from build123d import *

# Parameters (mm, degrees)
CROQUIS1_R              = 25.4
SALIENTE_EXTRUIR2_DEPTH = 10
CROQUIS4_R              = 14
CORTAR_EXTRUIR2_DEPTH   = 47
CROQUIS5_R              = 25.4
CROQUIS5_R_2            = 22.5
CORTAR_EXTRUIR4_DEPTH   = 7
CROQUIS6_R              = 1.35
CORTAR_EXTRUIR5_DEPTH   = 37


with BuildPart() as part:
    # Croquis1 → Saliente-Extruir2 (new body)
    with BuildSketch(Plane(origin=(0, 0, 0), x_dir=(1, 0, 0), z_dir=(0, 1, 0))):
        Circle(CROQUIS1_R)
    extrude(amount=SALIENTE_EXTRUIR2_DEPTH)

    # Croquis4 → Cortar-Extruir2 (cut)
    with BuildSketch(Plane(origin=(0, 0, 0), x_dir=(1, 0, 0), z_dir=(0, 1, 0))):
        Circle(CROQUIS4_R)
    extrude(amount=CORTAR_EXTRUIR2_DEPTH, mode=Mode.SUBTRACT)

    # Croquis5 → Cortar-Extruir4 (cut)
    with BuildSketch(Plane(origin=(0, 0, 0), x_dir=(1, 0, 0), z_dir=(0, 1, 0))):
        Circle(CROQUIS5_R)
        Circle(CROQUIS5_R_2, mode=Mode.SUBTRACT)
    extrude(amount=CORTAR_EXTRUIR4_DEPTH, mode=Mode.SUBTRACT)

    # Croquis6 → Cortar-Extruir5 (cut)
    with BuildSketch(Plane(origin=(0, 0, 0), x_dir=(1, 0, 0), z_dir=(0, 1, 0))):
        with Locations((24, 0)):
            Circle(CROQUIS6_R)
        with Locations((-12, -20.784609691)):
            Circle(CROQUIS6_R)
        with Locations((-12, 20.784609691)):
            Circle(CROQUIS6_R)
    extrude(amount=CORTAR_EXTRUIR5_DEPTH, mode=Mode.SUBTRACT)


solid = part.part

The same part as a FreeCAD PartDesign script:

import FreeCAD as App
import Part
import Sketcher

doc = App.newDocument("Part")
body = doc.addObject("PartDesign::Body", "Body")

sketch1 = body.newObject("Sketcher::SketchObject", "Sketch")
sketch1.AttachmentSupport = (doc.getObject("XZ_Plane"), [""])
sketch1.MapMode = "FlatFace"
sketch1.addGeometry(Part.Circle(App.Vector(0, 0, 0), App.Vector(0, 0, 1), 25), False)
sketch1.addConstraint([
    Sketcher.Constraint("Coincident", 0, 3, -1, 1),
    Sketcher.Constraint("Diameter", 0, 50.8),
])
pad1 = body.newObject("PartDesign::Pad", "Pad")
pad1.Profile = sketch1
pad1.Length = 10
pad1.Reversed = True

sketch2 = body.newObject("Sketcher::SketchObject", "Sketch001")
sketch2.AttachmentSupport = (doc.getObject("XZ_Plane"), [""])
sketch2.MapMode = "FlatFace"
sketch2.addGeometry(Part.Circle(App.Vector(0, 0, 0), App.Vector(0, 0, 1), 14), False)
sketch2.addConstraint([
    Sketcher.Constraint("Coincident", 0, 3, -1, 1),
    Sketcher.Constraint("Diameter", 0, 28.0),
])
pocket1 = body.newObject("PartDesign::Pocket", "Pocket")
pocket1.Profile = sketch2
pocket1.Length = 47

sketch3 = body.newObject("Sketcher::SketchObject", "Sketch002")
sketch3.AttachmentSupport = (doc.getObject("XZ_Plane"), [""])
sketch3.MapMode = "FlatFace"
sketch3.addGeometry([
    Part.Circle(App.Vector(0, 0, 0), App.Vector(0, 0, 1), 25),
    Part.Circle(App.Vector(0, 0, 0), App.Vector(0, 0, 1), 22),
], False)
sketch3.addConstraint([
    Sketcher.Constraint("Coincident", 0, 3, -1, 1),
    Sketcher.Constraint("Coincident", 1, 3, -1, 1),
    Sketcher.Constraint("Diameter", 1, 45.0),
    Sketcher.Constraint("Diameter", 0, 50.8),
])
pocket2 = body.newObject("PartDesign::Pocket", "Pocket001")
pocket2.Profile = sketch3
pocket2.Length = 7

sketch4 = body.newObject("Sketcher::SketchObject", "Sketch003")
sketch4.AttachmentSupport = (doc.getObject("XZ_Plane"), [""])
sketch4.MapMode = "FlatFace"
sketch4.addGeometry([
    Part.Circle(App.Vector(24, 0, 0), App.Vector(0, 0, 1), 1.4),
    Part.Circle(App.Vector(-12, 20.8, 0), App.Vector(0, 0, 1), 1.4),
    Part.Circle(App.Vector(-12, -20.8, 0), App.Vector(0, 0, 1), 1.4),
], False)
sketch4.addConstraint([
    Sketcher.Constraint("Equal", 0, 1),
    Sketcher.Constraint("Equal", 1, 2),
    Sketcher.Constraint("Symmetric", 1, 3, 2, 3, -1),
    Sketcher.Constraint("PointOnObject", 0, 3, -1),
    Sketcher.Constraint("Diameter", 0, 2.7),
    Sketcher.Constraint("DistanceX", -1, 1, 0, 3, 24.0),
    Sketcher.Constraint("DistanceX", 1, 3, -1, 1, 12.0),
    Sketcher.Constraint("DistanceY", -1, 1, 1, 3, 20.78461),
])
pocket3 = body.newObject("PartDesign::Pocket", "Pocket002")
pocket3.Profile = sketch4
pocket3.Length = 37

doc.recompute()
